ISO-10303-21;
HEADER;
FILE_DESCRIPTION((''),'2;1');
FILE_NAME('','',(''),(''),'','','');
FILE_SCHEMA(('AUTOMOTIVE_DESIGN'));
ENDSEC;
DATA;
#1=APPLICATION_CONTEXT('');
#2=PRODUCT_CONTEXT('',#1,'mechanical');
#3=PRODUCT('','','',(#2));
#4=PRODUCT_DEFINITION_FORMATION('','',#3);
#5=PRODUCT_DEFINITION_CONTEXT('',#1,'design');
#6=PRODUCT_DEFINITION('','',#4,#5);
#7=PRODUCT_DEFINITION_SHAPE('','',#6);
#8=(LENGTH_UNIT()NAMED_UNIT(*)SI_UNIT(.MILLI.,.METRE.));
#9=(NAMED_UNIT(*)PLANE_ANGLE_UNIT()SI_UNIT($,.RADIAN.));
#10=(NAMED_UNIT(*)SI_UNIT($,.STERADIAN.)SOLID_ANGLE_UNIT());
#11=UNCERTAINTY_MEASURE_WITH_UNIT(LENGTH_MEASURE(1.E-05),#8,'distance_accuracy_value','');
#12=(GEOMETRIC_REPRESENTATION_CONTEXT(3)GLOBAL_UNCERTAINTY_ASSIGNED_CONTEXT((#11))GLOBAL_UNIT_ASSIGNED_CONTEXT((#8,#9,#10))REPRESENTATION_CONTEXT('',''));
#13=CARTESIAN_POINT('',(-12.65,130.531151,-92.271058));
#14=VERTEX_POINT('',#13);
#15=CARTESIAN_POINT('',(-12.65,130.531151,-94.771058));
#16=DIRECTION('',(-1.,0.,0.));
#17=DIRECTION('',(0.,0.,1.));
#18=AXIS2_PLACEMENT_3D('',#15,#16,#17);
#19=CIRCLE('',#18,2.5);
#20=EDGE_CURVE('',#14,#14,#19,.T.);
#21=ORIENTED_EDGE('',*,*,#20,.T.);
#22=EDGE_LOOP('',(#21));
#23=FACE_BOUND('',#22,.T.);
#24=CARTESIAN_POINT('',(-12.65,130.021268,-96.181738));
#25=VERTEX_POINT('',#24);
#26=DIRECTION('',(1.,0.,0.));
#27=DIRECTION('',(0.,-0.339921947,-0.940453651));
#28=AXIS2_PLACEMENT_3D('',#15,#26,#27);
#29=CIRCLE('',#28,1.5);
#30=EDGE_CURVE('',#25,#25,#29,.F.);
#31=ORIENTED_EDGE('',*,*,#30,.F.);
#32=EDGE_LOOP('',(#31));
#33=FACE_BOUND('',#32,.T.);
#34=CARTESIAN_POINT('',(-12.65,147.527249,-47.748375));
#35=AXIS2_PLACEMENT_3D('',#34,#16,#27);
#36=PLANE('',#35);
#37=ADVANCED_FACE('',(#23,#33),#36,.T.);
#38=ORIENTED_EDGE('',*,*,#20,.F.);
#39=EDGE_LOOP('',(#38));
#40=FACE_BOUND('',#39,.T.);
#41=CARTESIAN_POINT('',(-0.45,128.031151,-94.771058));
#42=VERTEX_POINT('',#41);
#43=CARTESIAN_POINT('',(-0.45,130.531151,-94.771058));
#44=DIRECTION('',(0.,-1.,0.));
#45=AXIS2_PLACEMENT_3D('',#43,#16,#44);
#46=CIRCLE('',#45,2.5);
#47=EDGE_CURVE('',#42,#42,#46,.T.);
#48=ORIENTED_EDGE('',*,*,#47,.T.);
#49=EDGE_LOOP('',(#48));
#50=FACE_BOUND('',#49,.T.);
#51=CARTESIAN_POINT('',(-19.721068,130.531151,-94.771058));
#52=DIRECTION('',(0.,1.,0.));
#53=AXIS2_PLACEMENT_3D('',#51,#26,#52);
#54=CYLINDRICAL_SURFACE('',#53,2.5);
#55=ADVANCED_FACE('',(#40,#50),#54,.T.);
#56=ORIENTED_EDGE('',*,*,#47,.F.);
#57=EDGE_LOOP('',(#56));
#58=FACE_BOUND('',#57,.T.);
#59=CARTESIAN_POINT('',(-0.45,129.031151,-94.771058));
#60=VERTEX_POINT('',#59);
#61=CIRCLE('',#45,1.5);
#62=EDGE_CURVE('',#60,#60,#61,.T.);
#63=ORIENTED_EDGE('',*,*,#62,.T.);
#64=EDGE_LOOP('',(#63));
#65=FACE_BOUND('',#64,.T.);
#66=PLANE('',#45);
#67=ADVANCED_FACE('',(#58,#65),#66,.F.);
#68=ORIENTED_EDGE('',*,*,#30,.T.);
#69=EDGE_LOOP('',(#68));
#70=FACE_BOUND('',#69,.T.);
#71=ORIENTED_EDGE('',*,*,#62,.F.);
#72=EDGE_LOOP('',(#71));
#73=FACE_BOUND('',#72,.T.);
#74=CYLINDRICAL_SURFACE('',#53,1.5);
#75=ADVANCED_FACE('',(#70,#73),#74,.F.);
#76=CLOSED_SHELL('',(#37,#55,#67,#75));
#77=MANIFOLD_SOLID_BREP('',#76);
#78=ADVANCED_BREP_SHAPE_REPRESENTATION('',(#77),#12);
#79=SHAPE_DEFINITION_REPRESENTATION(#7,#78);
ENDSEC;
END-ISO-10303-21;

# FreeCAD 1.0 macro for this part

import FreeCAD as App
import Part
import Sketcher

V = App.Vector
Q = App.Units.Quantity

doc = App.newDocument("Part")
body = doc.addObject("PartDesign::Body", "Body")

# Sketch on YZ plane
sketch1 = body.newObject("Sketcher::SketchObject", "Sketch")
sketch1.AttachmentSupport = (doc.getObject("YZ_Plane"), [""])
sketch1.MapMode = "FlatFace"
sketch1.AttachmentOffset = App.Placement(V(0, 0, -0.45), App.Rotation())
sketch1.addGeometry(Part.Circle(V(130.5, -94.8, 0), V(0, 0, 1), 2.5), False)
sketch1.addGeometry(Part.Circle(V(130.5, -94.8, 0), V(0, 0, 1), 1.5), False)
sketch1.addConstraint(Sketcher.Constraint("Coincident", 1, 3, 0, 3))
sketch1.addConstraint(Sketcher.Constraint("Diameter", 0, Q("5 mm")))
sketch1.addConstraint(Sketcher.Constraint("Diameter", 1, Q("3 mm")))
sketch1.addConstraint(Sketcher.Constraint("DistanceX", -1, 1, 0, 3, Q("130.531151 mm")))
sketch1.addConstraint(Sketcher.Constraint("DistanceY", 0, 3, -1, 1, Q("94.771058 mm")))
pad1 = body.newObject("PartDesign::Pad", "Pad")
pad1.Profile = sketch1
pad1.Length = 12.2
pad1.Reversed = True

doc.recompute()
